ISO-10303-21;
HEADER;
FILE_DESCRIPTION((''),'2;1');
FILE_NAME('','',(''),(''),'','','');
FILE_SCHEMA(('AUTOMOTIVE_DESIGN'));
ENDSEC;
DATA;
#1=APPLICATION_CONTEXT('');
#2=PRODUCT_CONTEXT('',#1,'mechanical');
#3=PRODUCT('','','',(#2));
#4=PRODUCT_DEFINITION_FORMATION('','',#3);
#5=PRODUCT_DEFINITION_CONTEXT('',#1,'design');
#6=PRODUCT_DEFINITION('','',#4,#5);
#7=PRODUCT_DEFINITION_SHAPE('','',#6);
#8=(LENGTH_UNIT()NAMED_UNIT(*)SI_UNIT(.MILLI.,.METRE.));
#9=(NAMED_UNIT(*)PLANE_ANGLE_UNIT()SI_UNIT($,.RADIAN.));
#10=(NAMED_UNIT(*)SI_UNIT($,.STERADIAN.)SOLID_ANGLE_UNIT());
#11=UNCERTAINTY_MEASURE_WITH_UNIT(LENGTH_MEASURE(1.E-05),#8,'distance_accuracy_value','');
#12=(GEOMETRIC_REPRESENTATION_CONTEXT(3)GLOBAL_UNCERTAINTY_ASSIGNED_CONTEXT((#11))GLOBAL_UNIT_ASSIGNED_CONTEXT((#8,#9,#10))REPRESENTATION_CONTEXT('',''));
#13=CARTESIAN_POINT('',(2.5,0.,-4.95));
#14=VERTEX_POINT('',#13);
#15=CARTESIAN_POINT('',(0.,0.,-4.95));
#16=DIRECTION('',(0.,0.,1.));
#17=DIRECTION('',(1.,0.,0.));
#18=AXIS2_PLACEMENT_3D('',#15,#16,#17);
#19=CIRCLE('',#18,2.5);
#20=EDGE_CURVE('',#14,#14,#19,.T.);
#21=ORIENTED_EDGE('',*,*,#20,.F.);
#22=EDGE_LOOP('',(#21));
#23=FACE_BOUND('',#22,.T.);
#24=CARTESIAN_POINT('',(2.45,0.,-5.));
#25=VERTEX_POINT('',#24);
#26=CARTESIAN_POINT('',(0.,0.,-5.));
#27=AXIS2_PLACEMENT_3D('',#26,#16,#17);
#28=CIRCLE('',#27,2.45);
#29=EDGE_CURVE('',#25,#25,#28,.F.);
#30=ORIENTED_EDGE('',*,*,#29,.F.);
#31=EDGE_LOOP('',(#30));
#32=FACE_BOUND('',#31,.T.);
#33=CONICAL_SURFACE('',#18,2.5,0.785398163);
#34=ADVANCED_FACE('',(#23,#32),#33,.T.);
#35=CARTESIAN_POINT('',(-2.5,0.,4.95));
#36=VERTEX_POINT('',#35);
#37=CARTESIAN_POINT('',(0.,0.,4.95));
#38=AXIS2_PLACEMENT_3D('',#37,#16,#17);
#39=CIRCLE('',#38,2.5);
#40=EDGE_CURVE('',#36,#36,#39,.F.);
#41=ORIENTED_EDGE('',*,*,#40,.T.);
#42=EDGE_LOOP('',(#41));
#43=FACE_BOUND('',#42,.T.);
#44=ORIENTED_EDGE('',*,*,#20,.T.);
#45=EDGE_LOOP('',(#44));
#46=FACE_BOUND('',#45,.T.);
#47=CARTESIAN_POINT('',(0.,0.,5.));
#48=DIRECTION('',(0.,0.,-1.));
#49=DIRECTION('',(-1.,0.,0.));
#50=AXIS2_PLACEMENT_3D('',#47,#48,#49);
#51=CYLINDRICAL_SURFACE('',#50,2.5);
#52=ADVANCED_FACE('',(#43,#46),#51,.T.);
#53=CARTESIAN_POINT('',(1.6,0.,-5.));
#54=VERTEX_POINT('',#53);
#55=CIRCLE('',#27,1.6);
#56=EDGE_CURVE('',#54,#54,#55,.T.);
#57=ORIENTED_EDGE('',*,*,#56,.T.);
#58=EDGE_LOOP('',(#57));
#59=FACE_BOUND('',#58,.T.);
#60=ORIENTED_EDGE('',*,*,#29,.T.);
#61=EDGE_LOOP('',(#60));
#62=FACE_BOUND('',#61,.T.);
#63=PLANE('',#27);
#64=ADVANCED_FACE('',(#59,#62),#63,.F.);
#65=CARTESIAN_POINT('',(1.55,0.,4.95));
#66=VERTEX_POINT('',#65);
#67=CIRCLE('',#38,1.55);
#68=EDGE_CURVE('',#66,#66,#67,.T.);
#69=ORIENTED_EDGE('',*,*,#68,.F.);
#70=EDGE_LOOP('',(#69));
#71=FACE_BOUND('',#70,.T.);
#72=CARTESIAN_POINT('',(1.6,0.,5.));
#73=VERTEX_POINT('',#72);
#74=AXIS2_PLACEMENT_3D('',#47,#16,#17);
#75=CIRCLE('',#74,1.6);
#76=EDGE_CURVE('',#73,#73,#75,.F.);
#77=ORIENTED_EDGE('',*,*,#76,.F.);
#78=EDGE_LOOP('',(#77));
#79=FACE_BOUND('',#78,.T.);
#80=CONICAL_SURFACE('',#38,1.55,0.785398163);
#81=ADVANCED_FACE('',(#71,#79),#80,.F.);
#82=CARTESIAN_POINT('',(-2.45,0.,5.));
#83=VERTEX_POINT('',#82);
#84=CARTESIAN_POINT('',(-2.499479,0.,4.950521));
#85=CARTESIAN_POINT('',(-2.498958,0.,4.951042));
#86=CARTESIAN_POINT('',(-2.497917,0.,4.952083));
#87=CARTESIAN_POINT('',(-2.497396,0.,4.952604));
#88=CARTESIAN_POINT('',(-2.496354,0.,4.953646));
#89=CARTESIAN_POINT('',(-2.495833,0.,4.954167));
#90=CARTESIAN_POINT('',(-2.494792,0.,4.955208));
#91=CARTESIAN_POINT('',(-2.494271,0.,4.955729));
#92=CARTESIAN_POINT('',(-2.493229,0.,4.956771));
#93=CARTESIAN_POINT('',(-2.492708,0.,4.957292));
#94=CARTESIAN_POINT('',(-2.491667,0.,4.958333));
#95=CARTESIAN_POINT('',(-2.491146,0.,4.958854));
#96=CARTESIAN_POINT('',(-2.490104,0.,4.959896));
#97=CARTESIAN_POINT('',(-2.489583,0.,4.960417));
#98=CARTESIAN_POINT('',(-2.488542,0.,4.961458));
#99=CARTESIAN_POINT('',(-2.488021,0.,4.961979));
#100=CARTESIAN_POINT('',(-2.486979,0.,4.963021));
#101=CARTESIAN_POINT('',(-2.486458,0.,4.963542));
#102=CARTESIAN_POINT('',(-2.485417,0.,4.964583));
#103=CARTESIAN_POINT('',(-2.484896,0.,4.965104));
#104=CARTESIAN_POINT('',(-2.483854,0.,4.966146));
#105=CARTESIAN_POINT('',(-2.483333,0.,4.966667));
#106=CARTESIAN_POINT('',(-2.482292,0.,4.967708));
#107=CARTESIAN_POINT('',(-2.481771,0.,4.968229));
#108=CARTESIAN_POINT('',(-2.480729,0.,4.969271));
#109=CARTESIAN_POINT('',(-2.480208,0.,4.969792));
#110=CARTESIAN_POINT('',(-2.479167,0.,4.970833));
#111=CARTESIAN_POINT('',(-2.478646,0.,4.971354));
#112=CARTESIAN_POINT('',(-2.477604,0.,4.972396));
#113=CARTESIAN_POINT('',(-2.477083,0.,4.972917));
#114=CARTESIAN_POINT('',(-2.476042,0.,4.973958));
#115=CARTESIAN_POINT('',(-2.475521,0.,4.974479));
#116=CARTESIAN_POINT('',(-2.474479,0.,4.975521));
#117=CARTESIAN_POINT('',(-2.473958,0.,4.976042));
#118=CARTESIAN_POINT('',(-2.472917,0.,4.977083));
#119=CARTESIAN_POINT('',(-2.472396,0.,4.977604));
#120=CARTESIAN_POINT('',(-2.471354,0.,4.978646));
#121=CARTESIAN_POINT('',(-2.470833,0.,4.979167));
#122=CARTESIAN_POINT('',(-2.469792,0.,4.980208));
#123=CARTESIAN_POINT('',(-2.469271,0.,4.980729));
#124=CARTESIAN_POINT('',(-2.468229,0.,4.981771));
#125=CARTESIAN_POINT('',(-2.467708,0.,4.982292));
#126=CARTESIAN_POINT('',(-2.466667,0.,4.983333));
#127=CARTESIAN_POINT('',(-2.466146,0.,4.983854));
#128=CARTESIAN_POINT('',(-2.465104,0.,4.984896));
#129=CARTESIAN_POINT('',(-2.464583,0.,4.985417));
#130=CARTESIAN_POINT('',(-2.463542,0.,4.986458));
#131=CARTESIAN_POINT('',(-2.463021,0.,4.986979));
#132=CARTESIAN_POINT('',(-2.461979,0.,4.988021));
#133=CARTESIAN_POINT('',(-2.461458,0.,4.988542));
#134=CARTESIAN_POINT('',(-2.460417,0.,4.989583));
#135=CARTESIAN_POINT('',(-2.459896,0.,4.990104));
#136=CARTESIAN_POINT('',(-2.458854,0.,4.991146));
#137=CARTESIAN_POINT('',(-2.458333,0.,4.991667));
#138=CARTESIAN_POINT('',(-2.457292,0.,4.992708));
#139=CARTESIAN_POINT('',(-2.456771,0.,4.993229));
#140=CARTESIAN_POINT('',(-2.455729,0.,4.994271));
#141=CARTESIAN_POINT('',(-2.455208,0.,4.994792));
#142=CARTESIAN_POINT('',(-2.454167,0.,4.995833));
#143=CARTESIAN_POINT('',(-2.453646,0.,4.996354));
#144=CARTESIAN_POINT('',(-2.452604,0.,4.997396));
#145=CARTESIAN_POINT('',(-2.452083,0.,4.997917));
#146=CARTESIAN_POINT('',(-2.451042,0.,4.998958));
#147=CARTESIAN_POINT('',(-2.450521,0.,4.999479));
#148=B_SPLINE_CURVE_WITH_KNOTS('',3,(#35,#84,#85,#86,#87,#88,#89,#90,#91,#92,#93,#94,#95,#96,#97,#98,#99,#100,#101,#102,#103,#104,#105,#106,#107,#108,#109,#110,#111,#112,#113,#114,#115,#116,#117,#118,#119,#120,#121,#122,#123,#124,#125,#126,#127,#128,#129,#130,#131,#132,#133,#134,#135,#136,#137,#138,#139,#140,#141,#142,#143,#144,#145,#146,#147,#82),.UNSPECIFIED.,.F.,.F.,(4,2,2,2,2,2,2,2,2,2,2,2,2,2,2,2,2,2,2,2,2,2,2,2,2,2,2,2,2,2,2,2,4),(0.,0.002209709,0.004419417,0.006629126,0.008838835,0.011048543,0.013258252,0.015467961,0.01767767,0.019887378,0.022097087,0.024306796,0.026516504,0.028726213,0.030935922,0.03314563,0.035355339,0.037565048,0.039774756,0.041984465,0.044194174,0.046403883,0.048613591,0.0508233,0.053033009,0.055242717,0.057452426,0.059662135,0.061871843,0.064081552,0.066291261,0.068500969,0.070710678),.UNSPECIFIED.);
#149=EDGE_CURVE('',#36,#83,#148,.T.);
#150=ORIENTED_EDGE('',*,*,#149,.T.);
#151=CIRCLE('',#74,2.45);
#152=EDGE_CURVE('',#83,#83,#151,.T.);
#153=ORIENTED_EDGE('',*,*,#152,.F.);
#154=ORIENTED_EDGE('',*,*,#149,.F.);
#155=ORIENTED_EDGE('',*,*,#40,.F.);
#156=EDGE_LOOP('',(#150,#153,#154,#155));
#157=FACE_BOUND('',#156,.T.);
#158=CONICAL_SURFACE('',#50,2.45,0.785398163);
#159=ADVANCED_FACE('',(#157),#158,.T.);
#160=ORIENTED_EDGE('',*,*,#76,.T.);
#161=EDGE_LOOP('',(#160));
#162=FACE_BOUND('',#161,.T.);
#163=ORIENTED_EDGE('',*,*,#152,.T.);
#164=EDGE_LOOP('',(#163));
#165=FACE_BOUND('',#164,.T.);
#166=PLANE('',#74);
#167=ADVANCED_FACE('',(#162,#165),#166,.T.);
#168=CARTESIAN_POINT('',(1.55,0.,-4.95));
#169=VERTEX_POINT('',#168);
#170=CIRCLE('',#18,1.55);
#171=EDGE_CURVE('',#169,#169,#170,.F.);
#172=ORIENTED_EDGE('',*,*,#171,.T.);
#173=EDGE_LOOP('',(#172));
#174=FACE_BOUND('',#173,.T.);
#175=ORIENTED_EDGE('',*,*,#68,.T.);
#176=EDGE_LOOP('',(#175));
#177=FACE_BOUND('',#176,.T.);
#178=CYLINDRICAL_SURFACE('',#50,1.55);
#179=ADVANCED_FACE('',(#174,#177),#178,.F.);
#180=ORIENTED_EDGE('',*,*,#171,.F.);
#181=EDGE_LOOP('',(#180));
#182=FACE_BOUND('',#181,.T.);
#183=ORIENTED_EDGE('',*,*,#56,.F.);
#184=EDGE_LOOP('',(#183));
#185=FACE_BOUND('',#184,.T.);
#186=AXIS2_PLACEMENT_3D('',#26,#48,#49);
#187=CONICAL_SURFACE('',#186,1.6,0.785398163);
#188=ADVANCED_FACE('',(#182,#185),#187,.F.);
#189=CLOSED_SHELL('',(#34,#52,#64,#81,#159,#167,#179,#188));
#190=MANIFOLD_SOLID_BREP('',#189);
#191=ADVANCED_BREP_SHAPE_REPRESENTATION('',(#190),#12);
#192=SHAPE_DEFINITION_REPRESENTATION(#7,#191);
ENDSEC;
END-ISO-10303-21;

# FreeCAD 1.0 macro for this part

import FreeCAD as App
import Part
import Sketcher


def edges_at(feature, points):
    """Names of the edges that pass closest to the given points."""
    edges = feature.Shape.Edges
    near = lambda p: min(range(len(edges)), key=lambda i: edges[i].distToShape(Part.Vertex(*p))[0])
    return sorted({f"Edge{near(p) + 1}" for p in points})

doc = App.newDocument("Part")
params = doc.addObject("Spreadsheet::Sheet", "Params")
for row, (alias, value) in enumerate([
    ("sketch1_diameter", "5 mm"),
    ("sketch1_diameter2", "3.1 mm"),
    ("pad1_length", "10 mm"),
    ("chamfer_size", "0.05 mm"),
], start=1):
    params.set(f"A{row}", alias)
    params.set(f"B{row}", "=" + value)
    params.setAlias(f"B{row}", alias)

body = doc.addObject("PartDesign::Body", "Body")

# Sketch on XY plane
sketch1 = body.newObject("Sketcher::SketchObject", "Sketch")
sketch1.AttachmentSupport = (doc.getObject("XY_Plane"), [""])
sketch1.MapMode = "FlatFace"
sketch1.addGeometry(Part.Circle(App.Vector(0, 0, 0), App.Vector(0, 0, 1), 2.5), False)
sketch1.addGeometry(Part.Circle(App.Vector(0, 0, 0), App.Vector(0, 0, 1), 1.6), False)
sketch1.addConstraint(Sketcher.Constraint("Coincident", 0, 3, -1, 1))
sketch1.addConstraint(Sketcher.Constraint("Coincident", 1, 3, -1, 1))
sketch1.addConstraint(Sketcher.Constraint("Diameter", 0, 5.0))
sketch1.addConstraint(Sketcher.Constraint("Diameter", 1, 3.1))
sketch1.setExpression("Constraints[2]", "Params.sketch1_diameter")
sketch1.setExpression("Constraints[3]", "Params.sketch1_diameter2")
pad1 = body.newObject("PartDesign::Pad", "Pad")
pad1.Profile = sketch1
pad1.setExpression("Length", "Params.pad1_length")
pad1.Midplane = True
doc.recompute()

chamfer = body.newObject("PartDesign::Chamfer", "Chamfer")
chamfer.Base = (pad1, edges_at(pad1, [
    (-2.5, 0, -5),
    (-2.5, 0, 5),
    (-1.55, 0, -5),
    (-1.55, 0, 5),
]))
chamfer.setExpression("Size", "Params.chamfer_size")

doc.recompute()
